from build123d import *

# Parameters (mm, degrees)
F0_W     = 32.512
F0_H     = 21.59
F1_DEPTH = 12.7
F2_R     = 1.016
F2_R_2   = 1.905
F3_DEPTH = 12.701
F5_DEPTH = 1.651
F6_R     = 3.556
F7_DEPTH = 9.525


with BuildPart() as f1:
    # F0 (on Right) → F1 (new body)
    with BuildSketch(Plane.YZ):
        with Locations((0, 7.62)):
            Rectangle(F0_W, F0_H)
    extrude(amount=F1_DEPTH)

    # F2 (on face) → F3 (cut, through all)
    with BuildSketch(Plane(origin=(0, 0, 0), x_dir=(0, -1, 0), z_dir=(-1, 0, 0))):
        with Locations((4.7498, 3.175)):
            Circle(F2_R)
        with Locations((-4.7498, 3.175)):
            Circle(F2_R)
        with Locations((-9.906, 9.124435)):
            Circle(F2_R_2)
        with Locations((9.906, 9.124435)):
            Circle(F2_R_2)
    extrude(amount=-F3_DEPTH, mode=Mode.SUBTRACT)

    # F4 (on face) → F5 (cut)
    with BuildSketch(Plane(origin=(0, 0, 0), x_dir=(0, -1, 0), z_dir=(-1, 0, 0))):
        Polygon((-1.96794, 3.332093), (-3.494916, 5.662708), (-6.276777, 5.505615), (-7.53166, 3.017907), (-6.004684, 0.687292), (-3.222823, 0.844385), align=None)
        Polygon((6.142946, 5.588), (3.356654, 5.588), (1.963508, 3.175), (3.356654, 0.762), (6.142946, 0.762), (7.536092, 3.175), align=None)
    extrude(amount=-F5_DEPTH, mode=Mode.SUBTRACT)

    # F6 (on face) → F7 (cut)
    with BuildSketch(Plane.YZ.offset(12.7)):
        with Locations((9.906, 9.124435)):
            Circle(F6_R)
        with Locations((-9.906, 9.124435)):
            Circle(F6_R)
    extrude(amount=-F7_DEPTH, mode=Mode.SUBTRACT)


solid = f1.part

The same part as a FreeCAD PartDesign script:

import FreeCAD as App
import Part
import Sketcher
Q = App.Units.Quantity


def add_polygon(sketch, points):
    """Adds a closed chain of lines whose ends are joined by coincident constraints."""
    first, n = sketch.GeometryCount, len(points)
    for a, b in zip(points, points[1:] + points[:1]):
        sketch.addGeometry(Part.LineSegment(App.Vector(*a, 0), App.Vector(*b, 0)), False)
    for i in range(n):
        sketch.addConstraint(Sketcher.Constraint("Coincident", first + i, 2, first + (i + 1) % n, 1))

doc = App.newDocument("Part")
body = doc.addObject("PartDesign::Body", "Body")

# Sketch on YZ plane
sketch1 = body.newObject("Sketcher::SketchObject", "Sketch")
sketch1.AttachmentSupport = (doc.getObject("YZ_Plane"), [""])
sketch1.MapMode = "FlatFace"
add_polygon(sketch1, [(-16.256, 18.415), (-16.256, -3.175), (16.256, -3.175), (16.256, 18.415)])  # lines 0-3
sketch1.addConstraint([
    Sketcher.Constraint("Vertical", 0),
    Sketcher.Constraint("Horizontal", 1),
    Sketcher.Constraint("Vertical", 2),
    Sketcher.Constraint("Horizontal", 3),
    Sketcher.Constraint("DistanceX", 1, 1, 1, 2, Q("1.28 in")),
    Sketcher.Constraint("DistanceY", 0, 2, 0, 1, Q("0.85 in")),
    Sketcher.Constraint("DistanceX", 0, 2, -1, 1, Q("0.64 in")),
    Sketcher.Constraint("DistanceY", 0, 2, -1, 1, Q("0.125 in")),
])
pad1 = body.newObject("PartDesign::Pad", "Pad")
pad1.Profile = sketch1
pad1.Length = Q("0.5 in")

# Sketch on YZ plane
sketch2 = body.newObject("Sketcher::SketchObject", "Sketch001")
sketch2.AttachmentSupport = (doc.getObject("YZ_Plane"), [""])
sketch2.MapMode = "FlatFace"
sketch2.addGeometry([
    Part.Circle(App.Vector(-4.7498, 3.175, 0), App.Vector(0, 0, 1), 1.016),
    Part.Circle(App.Vector(4.7498, 3.175, 0), App.Vector(0, 0, 1), 1.016),
    Part.Circle(App.Vector(9.906, 9.124435, 0), App.Vector(0, 0, 1), 1.905),
    Part.Circle(App.Vector(-9.906, 9.124435, 0), App.Vector(0, 0, 1), 1.905),
], False)
sketch2.addConstraint([
    Sketcher.Constraint("Equal", 0, 1),
    Sketcher.Constraint("Equal", 2, 3),
    Sketcher.Constraint("Symmetric", 0, 3, 1, 3, -2),
    Sketcher.Constraint("Symmetric", 2, 3, 3, 3, -2),
    Sketcher.Constraint("Diameter", 0, Q("0.08 in")),
    Sketcher.Constraint("Diameter", 2, Q("0.15 in")),
    Sketcher.Constraint("DistanceX", -1, 1, 2, 3, Q("0.39 in")),
    Sketcher.Constraint("DistanceX", 0, 3, -1, 1, Q("0.187 in")),
    Sketcher.Constraint("DistanceY", -1, 1, 0, 3, Q("0.125 in")),
    Sketcher.Constraint("DistanceY", -1, 1, 2, 3, 9.124435),
])
pocket1 = body.newObject("PartDesign::Pocket", "Pocket")
pocket1.Profile = sketch2
pocket1.Type = "ThroughAll"
pocket1.Reversed = True

# Sketch on YZ plane
sketch3 = body.newObject("Sketcher::SketchObject", "Sketch002")
sketch3.AttachmentSupport = (doc.getObject("YZ_Plane"), [""])
sketch3.MapMode = "FlatFace"
add_polygon(sketch3, [(1.96794, 3.332093), (3.494916, 5.662708), (6.276777, 5.505615), (7.53166, 3.017907), (6.004684, 0.687292), (3.222823, 0.844385)])  # lines 0-5
add_polygon(sketch3, [(-6.142946, 5.588), (-3.356654, 5.588), (-1.963508, 3.175), (-3.356654, 0.762), (-6.142946, 0.762), (-7.536092, 3.175)])  # lines 6-11
sketch3.addConstraint([
    Sketcher.Constraint("Horizontal", 6),
    Sketcher.Constraint("Horizontal", 9),
    Sketcher.Constraint("DistanceY", -1, 1, 6, 2, Q("0.22 in")),
    Sketcher.Constraint("DistanceY", -1, 1, 8, 2, Q("0.03 in")),
    Sketcher.Constraint("DistanceY", -1, 1, 7, 2, Q("0.125 in")),
    Sketcher.Constraint("DistanceY", -1, 1, 10, 2, Q("0.125 in")),
    Sketcher.Constraint("DistanceY", 2, 2, 0, 2, 2.644801),
    Sketcher.Constraint("DistanceY", 3, 2, 5, 2, 2.644801),
    Sketcher.Constraint("Distance", 0, 2.786292),
    Sketcher.Constraint("Distance", 2, 2.786292),
    Sketcher.Constraint("Distance", 3, 2.786292),
    Sketcher.Constraint("Distance", 5, 2.786292),
    Sketcher.Constraint("DistanceX", 6, 1, 6, 2, 2.786292),
    Sketcher.Constraint("DistanceX", 9, 2, 9, 1, 2.786292),
    Sketcher.Constraint("DistanceY", -1, 1, 0, 2, 5.662708),
    Sketcher.Constraint("DistanceX", -1, 1, 2, 2, 7.53166),
    Sketcher.Constraint("DistanceX", -1, 1, 5, 2, 1.96794),
    Sketcher.Constraint("DistanceX", 0, 2, 1, 2, 2.781861),
    Sketcher.Constraint("DistanceX", 0, 2, 3, 2, 2.509768),
    Sketcher.Constraint("DistanceX", 4, 2, 3, 2, 2.781861),
    Sketcher.Constraint("DistanceX", 6, 2, 0, 2, 6.85157),
    Sketcher.Constraint("DistanceX", 7, 2, 5, 2, 3.931448),
    Sketcher.Constraint("DistanceX", 8, 2, 0, 2, 6.85157),
    Sketcher.Constraint("DistanceX", 10, 2, 6, 2, 4.179438),
])
pocket2 = body.newObject("PartDesign::Pocket", "Pocket001")
pocket2.Profile = sketch3
pocket2.Length = Q("0.065 in")
pocket2.Reversed = True

# Sketch on YZ plane
sketch4 = body.newObject("Sketcher::SketchObject", "Sketch003")
sketch4.AttachmentSupport = (doc.getObject("YZ_Plane"), [""])
sketch4.MapMode = "FlatFace"
sketch4.AttachmentOffset = App.Placement(App.Vector(0, 0, 0.5 * 25.4), App.Rotation())
sketch4.addGeometry([
    Part.Circle(App.Vector(9.906, 9.124435, 0), App.Vector(0, 0, 1), 3.556),
    Part.Circle(App.Vector(-9.906, 9.124435, 0), App.Vector(0, 0, 1), 3.556),
], False)
sketch4.addConstraint([
    Sketcher.Constraint("Equal", 0, 1),
    Sketcher.Constraint("Symmetric", 0, 3, 1, 3, -2),
    Sketcher.Constraint("Diameter", 0, Q("0.28 in")),
    Sketcher.Constraint("DistanceX", -1, 1, 0, 3, Q("0.39 in")),
    Sketcher.Constraint("DistanceY", -1, 1, 0, 3, 9.124435),
])
pocket3 = body.newObject("PartDesign::Pocket", "Pocket002")
pocket3.Profile = sketch4
pocket3.Length = Q("0.375 in")

doc.recompute()
